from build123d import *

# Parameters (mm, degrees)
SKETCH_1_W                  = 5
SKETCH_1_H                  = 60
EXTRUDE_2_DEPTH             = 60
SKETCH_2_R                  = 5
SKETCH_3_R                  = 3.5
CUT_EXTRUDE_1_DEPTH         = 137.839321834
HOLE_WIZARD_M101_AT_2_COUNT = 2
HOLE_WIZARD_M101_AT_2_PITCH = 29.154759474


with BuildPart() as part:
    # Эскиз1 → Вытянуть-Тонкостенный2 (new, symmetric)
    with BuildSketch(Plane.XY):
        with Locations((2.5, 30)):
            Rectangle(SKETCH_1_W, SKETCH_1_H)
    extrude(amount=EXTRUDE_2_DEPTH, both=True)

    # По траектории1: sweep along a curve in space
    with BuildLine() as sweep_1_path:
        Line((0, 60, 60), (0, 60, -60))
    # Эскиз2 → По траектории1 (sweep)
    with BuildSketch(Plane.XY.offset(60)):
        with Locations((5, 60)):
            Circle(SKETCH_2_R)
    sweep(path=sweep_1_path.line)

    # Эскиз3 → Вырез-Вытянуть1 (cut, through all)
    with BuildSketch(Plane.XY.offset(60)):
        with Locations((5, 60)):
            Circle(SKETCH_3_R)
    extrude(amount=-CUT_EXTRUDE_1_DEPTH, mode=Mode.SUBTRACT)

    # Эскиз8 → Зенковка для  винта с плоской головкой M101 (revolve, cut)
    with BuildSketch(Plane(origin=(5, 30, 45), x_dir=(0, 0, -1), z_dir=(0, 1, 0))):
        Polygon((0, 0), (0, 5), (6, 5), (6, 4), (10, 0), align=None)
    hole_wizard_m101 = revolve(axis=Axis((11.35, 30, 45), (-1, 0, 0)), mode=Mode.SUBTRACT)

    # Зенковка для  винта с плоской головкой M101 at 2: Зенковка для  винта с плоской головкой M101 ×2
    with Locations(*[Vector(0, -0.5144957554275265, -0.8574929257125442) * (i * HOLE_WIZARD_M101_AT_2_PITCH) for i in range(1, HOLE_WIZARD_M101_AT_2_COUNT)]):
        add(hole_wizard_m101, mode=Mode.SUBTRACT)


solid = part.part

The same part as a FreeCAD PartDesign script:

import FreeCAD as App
import Part
import Sketcher
from FreeCAD import Vector


def add_polygon(sketch, points):
    """Adds a closed chain of lines whose ends are joined by coincident constraints."""
    first, n = sketch.GeometryCount, len(points)
    for a, b in zip(points, points[1:] + points[:1]):
        sketch.addGeometry(Part.LineSegment(App.Vector(*a, 0), App.Vector(*b, 0)), False)
    for i in range(n):
        sketch.addConstraint(Sketcher.Constraint("Coincident", first + i, 2, first + (i + 1) % n, 1))

doc = App.newDocument("Part")
body = doc.addObject("PartDesign::Body", "Body")

sketch1 = body.newObject("Sketcher::SketchObject", "Sketch")
sketch1.AttachmentSupport = (doc.getObject("XY_Plane"), [""])
sketch1.MapMode = "FlatFace"
add_polygon(sketch1, [(0, 60), (0, 0), (5, 0), (5, 60)])
sketch1.addConstraint([
    Sketcher.Constraint("Vertical", 0),
    Sketcher.Constraint("Horizontal", 1),
    Sketcher.Constraint("Vertical", 2),
    Sketcher.Constraint("Horizontal", 3),
    Sketcher.Constraint("Coincident", 0, 2, -1, 1),
    Sketcher.Constraint("DistanceX", 1, 1, 1, 2, 5.0),
    Sketcher.Constraint("DistanceY", 0, 2, 0, 1, 60.0),
])
pad1 = body.newObject("PartDesign::Pad", "Pad")
pad1.Profile = sketch1
pad1.Length = 120
pad1.Midplane = True

sketch2 = body.newObject("Sketcher::SketchObject", "Sketch001")
sketch2.AttachmentSupport = (doc.getObject("XY_Plane"), [""])
sketch2.MapMode = "FlatFace"
sketch2.AttachmentOffset = App.Placement(Vector(0, 0, 60), App.Rotation())
sketch2.addGeometry(Part.Circle(Vector(5, 60, 0), Vector(0, 0, 1), 5), False)
sketch2.addConstraint([
    Sketcher.Constraint("Diameter", 0, 10.0),
    Sketcher.Constraint("DistanceX", -1, 1, 0, 3, 5.0),
    Sketcher.Constraint("DistanceY", -1, 1, 0, 3, 60.0),
])

sketch3 = body.newObject("Sketcher::SketchObject", "Sketch002")
sketch3.AttachmentSupport = (doc.getObject("XZ_Plane"), [""])
sketch3.MapMode = "FlatFace"
sketch3.AttachmentOffset = App.Placement(Vector(0, 0, -60), App.Rotation())
sketch3.addGeometry(Part.LineSegment(Vector(0, 60, 0), Vector(0, -60, 0)), False)
sketch3.addConstraint([
    Sketcher.Constraint("Vertical", 0),
    Sketcher.Constraint("Symmetric", 0, 1, 0, 2, -1, 1),
    Sketcher.Constraint("DistanceY", 0, 2, 0, 1, 120.0),
])
doc.recompute()

additivepipe = body.newObject("PartDesign::AdditivePipe", "AdditivePipe")
additivepipe.Profile = sketch2
additivepipe.Spine = (sketch3, ["Edge1"])

sketch4 = body.newObject("Sketcher::SketchObject", "Sketch003")
sketch4.AttachmentSupport = (doc.getObject("XY_Plane"), [""])
sketch4.MapMode = "FlatFace"
sketch4.AttachmentOffset = App.Placement(Vector(0, 0, 60), App.Rotation())
sketch4.addGeometry(Part.Circle(Vector(5, 60, 0), Vector(0, 0, 1), 3.5), False)
sketch4.addConstraint([
    Sketcher.Constraint("Diameter", 0, 7.0),
    Sketcher.Constraint("DistanceX", -1, 1, 0, 3, 5.0),
    Sketcher.Constraint("DistanceY", -1, 1, 0, 3, 60.0),
])
pocket1 = body.newObject("PartDesign::Pocket", "Pocket")
pocket1.Profile = sketch4
pocket1.Type = "ThroughAll"

sketch5 = body.newObject("Sketcher::SketchObject", "Sketch004")
sketch5.AttachmentSupport = (doc.getObject("XZ_Plane"), [""])
sketch5.MapMode = "FlatFace"
sketch5.AttachmentOffset = App.Placement(Vector(0, 0, -30), App.Rotation())
add_polygon(sketch5, [(0, 45), (5, 45), (5, 35), (1, 39), (0, 39)])
sketch5.addGeometry(Part.LineSegment(Vector(5, 45, 0), Vector(0, 45, 0)), True)
sketch5.addConstraint([
    Sketcher.Constraint("Horizontal", 0),
    Sketcher.Constraint("Vertical", 1),
    Sketcher.Constraint("Horizontal", 3),
    Sketcher.Constraint("Vertical", 4),
    Sketcher.Constraint("Horizontal", 5),
    Sketcher.Constraint("Coincident", 5, 1, 0, 2),
    Sketcher.Constraint("PointOnObject", 3, 2, -2),
    Sketcher.Constraint("PointOnObject", 5, 2, -2),
    Sketcher.Constraint("DistanceX", 0, 1, 0, 2, 5.0),
    Sketcher.Constraint("DistanceX", 3, 2, 3, 1, 1.0),
    Sketcher.Constraint("DistanceY", 1, 2, 1, 1, 10.0),
    Sketcher.Constraint("DistanceY", 4, 1, 4, 2, 6.0),
    Sketcher.Constraint("DistanceY", -1, 1, 0, 2, 45.0),
])
groove = body.newObject("PartDesign::Groove", "Groove")
groove.Profile = sketch5
groove.ReferenceAxis = (sketch5, ["Axis0"])
groove.Angle = 360
doc.recompute()

datumline = body.newObject("PartDesign::Line", "DatumLine")
datumline.Placement = App.Placement(Vector(0, 0, 0), App.Rotation(Vector(0, 0, 1), Vector(0, -0.514495755, -0.857492926)))
linearpattern = body.newObject("PartDesign::LinearPattern", "LinearPattern")
linearpattern.Originals = [groove]
linearpattern.Direction = (datumline, [""])
linearpattern.Mode = "offset"
linearpattern.Offset = 29.154759
linearpattern.Occurrences = 2
body.Tip = linearpattern

doc.recompute()
